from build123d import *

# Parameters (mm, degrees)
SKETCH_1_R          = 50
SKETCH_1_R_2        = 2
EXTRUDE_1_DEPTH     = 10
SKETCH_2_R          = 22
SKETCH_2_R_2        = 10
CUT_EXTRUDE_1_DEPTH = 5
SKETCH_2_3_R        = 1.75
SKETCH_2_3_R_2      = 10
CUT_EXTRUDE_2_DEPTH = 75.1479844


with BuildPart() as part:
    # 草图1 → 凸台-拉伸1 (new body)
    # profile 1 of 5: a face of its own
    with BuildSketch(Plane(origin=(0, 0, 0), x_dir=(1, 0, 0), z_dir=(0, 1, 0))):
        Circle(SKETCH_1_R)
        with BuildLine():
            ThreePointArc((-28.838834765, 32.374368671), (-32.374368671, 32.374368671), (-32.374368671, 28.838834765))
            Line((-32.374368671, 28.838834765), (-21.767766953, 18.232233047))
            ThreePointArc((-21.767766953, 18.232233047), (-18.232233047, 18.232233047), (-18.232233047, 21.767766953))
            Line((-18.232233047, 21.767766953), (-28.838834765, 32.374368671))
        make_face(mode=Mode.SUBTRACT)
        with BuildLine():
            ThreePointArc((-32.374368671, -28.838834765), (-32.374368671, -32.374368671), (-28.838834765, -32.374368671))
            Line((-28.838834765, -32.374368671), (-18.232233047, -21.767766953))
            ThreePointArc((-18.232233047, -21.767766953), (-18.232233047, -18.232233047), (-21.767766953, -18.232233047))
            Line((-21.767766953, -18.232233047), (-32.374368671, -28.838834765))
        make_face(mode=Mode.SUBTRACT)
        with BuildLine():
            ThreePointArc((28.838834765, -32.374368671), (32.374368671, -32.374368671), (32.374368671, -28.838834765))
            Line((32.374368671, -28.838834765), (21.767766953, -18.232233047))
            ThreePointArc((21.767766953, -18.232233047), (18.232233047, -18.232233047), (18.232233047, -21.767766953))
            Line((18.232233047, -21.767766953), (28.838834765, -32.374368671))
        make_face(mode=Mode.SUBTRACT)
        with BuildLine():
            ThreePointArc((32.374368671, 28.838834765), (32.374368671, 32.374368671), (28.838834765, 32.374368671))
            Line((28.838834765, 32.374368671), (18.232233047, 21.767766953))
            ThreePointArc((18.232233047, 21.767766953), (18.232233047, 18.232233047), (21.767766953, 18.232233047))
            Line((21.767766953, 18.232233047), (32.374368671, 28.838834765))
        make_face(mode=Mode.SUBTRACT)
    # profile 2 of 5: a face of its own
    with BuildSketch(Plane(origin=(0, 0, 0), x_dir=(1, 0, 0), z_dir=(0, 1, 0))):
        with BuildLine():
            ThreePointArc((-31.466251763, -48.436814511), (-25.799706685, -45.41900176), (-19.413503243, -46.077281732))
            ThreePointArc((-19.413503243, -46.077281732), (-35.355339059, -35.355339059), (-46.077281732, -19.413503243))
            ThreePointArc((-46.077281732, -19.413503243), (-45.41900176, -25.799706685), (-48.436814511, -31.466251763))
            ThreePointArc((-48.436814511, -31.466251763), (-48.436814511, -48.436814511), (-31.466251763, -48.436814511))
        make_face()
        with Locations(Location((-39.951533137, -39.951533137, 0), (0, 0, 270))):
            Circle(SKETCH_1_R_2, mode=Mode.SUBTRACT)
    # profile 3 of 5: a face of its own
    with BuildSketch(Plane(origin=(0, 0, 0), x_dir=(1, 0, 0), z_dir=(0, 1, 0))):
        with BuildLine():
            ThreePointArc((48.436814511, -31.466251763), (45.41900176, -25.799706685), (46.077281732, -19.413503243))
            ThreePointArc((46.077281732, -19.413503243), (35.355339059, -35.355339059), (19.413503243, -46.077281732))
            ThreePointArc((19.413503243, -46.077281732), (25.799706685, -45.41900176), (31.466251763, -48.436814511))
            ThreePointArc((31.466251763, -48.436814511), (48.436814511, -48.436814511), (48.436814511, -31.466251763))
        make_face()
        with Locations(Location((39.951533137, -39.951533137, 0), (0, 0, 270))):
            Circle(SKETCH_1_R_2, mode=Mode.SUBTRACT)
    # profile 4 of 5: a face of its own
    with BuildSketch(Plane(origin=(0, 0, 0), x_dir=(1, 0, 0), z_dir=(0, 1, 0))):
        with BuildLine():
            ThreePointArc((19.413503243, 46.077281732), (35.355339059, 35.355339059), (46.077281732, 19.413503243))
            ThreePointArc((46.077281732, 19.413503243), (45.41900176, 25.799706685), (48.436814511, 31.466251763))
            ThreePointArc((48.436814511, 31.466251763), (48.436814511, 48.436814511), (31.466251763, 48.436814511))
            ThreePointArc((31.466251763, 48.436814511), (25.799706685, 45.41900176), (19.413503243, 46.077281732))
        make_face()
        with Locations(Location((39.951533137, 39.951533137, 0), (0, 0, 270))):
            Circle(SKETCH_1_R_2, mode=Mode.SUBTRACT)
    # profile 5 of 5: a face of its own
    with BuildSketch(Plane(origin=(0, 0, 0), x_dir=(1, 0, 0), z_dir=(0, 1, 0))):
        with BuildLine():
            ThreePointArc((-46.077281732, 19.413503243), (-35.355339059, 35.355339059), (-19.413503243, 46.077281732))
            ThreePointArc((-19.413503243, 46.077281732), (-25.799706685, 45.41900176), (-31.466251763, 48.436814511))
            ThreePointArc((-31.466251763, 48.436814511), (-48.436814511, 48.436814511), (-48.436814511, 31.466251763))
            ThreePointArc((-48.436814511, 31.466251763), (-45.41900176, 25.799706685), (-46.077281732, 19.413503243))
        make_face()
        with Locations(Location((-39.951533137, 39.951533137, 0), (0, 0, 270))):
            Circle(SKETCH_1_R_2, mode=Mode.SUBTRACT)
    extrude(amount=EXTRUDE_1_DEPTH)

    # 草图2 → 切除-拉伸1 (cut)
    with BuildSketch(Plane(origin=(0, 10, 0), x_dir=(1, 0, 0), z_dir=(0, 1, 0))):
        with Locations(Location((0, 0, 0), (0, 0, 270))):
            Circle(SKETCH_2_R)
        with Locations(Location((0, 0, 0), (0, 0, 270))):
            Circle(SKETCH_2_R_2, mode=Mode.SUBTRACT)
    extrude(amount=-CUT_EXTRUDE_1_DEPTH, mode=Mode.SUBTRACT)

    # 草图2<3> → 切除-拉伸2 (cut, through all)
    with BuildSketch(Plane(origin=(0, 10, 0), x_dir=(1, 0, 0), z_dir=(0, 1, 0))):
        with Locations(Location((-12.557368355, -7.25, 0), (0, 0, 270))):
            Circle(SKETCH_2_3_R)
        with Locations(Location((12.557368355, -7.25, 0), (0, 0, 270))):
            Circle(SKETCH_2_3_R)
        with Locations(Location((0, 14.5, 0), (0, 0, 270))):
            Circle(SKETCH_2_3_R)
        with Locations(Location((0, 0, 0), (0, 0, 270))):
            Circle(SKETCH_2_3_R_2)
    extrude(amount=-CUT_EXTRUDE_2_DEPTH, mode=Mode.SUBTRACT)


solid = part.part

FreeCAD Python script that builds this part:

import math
import FreeCAD as App
import Part
import Sketcher
from FreeCAD import Vector
Q = App.Units.Quantity

doc = App.newDocument("Part")
body = doc.addObject("PartDesign::Body", "Body")

# Sketch on XZ plane
sketch1 = doc.addObject("Sketcher::SketchObject", "Sketch")
body.addObject(sketch1)
sketch1.AttachmentSupport = (doc.XZ_Plane, [""])
sketch1.MapMode = "FlatFace"
sketch1.addGeometry(Part.ArcOfCircle(Part.Circle(Vector(56.217315, -23.685751, 0), Vector(0, 0, 1), 11.003289), math.radians(157.153099), math.radians(225)), False)
sketch1.addGeometry(Part.ArcOfCircle(Part.Circle(Vector(39.951533, -39.951533, 0), Vector(0, 0, 1), 12), math.radians(-135), math.radians(45)), False)
sketch1.addGeometry(Part.ArcOfCircle(Part.Circle(Vector(23.685751, -56.217315, 0), Vector(0, 0, 1), 11.003289), math.radians(45), math.radians(112.846901)), False)
sketch1.addGeometry(Part.ArcOfCircle(Part.Circle(Vector(0, 0, 0), Vector(0, 0, 1), 50), math.radians(-112.846901), math.radians(-67.153099)), False)
sketch1.addGeometry(Part.ArcOfCircle(Part.Circle(Vector(-23.685751, -56.217315, 0), Vector(0, 0, 1), 11.003289), math.radians(67.153099), math.radians(135)), False)
sketch1.addGeometry(Part.ArcOfCircle(Part.Circle(Vector(-39.951533, -39.951533, 0), Vector(0, 0, 1), 12), math.radians(135), math.radians(315)), False)
sketch1.addGeometry(Part.ArcOfCircle(Part.Circle(Vector(-56.217315, -23.685751, 0), Vector(0, 0, 1), 11.003289), math.radians(-45), math.radians(22.846901)), False)
sketch1.addGeometry(Part.ArcOfCircle(Part.Circle(Vector(0, 0, 0), Vector(0, 0, 1), 50), math.radians(157.153099), math.radians(202.846901)), False)
sketch1.addGeometry(Part.ArcOfCircle(Part.Circle(Vector(-56.217315, 23.685751, 0), Vector(0, 0, 1), 11.003289), math.radians(-22.846901), math.radians(45)), False)
sketch1.addGeometry(Part.ArcOfCircle(Part.Circle(Vector(-39.951533, 39.951533, 0), Vector(0, 0, 1), 12), math.radians(45), math.radians(225)), False)
sketch1.addGeometry(Part.ArcOfCircle(Part.Circle(Vector(-23.685751, 56.217315, 0), Vector(0, 0, 1), 11.003289), math.radians(-135), math.radians(-67.153099)), False)
sketch1.addGeometry(Part.ArcOfCircle(Part.Circle(Vector(0, 0, 0), Vector(0, 0, 1), 50), math.radians(67.153099), math.radians(112.846901)), False)
sketch1.addGeometry(Part.ArcOfCircle(Part.Circle(Vector(23.685751, 56.217315, 0), Vector(0, 0, 1), 11.003289), math.radians(-112.846901), math.radians(-45)), False)
sketch1.addGeometry(Part.ArcOfCircle(Part.Circle(Vector(39.951533, 39.951533, 0), Vector(0, 0, 1), 12), math.radians(-45), math.radians(135)), False)
sketch1.addGeometry(Part.ArcOfCircle(Part.Circle(Vector(56.217315, 23.685751, 0), Vector(0, 0, 1), 11.003289), math.radians(135), math.radians(202.846901)), False)
sketch1.addGeometry(Part.ArcOfCircle(Part.Circle(Vector(0, 0, 0), Vector(0, 0, 1), 50), math.radians(-22.846901), math.radians(22.846901)), False)
sketch1.addGeometry(Part.ArcOfCircle(Part.Circle(Vector(-30.606602, 30.606602, 0), Vector(0, 0, 1), 2.5), math.radians(45), math.radians(225)), False)
sketch1.addGeometry(Part.LineSegment(Vector(-32.374369, 28.838835, 0), Vector(-21.767767, 18.232233, 0)), False)
sketch1.addGeometry(Part.ArcOfCircle(Part.Circle(Vector(-20, 20, 0), Vector(0, 0, 1), 2.5), math.radians(-135), math.radians(45)), False)
sketch1.addGeometry(Part.LineSegment(Vector(-18.232233, 21.767767, 0), Vector(-28.838835, 32.374369, 0)), False)
sketch1.addGeometry(Part.ArcOfCircle(Part.Circle(Vector(30.606602, 30.606602, 0), Vector(0, 0, 1), 2.5), math.radians(-45), math.radians(135)), False)
sketch1.addGeometry(Part.LineSegment(Vector(28.838835, 32.374369, 0), Vector(18.232233, 21.767767, 0)), False)
sketch1.addGeometry(Part.ArcOfCircle(Part.Circle(Vector(20, 20, 0), Vector(0, 0, 1), 2.5), math.radians(135), math.radians(315)), False)
sketch1.addGeometry(Part.LineSegment(Vector(21.767767, 18.232233, 0), Vector(32.374369, 28.838835, 0)), False)
sketch1.addGeometry(Part.ArcOfCircle(Part.Circle(Vector(-30.606602, -30.606602, 0), Vector(0, 0, 1), 2.5), math.radians(135), math.radians(315)), False)
sketch1.addGeometry(Part.LineSegment(Vector(-28.838835, -32.374369, 0), Vector(-18.232233, -21.767767, 0)), False)
sketch1.addGeometry(Part.ArcOfCircle(Part.Circle(Vector(-20, -20, 0), Vector(0, 0, 1), 2.5), math.radians(-45), math.radians(135)), False)
sketch1.addGeometry(Part.LineSegment(Vector(-21.767767, -18.232233, 0), Vector(-32.374369, -28.838835, 0)), False)
sketch1.addGeometry(Part.ArcOfCircle(Part.Circle(Vector(30.606602, -30.606602, 0), Vector(0, 0, 1), 2.5), math.radians(-135), math.radians(45)), False)
sketch1.addGeometry(Part.LineSegment(Vector(32.374369, -28.838835, 0), Vector(21.767767, -18.232233, 0)), False)
sketch1.addGeometry(Part.ArcOfCircle(Part.Circle(Vector(20, -20, 0), Vector(0, 0, 1), 2.5), math.radians(45), math.radians(225)), False)
sketch1.addGeometry(Part.LineSegment(Vector(18.232233, -21.767767, 0), Vector(28.838835, -32.374369, 0)), False)
sketch1.addGeometry(Part.Circle(Vector(39.951533, -39.951533, 0), Vector(0, 0, 1), 2), False)
sketch1.addGeometry(Part.Circle(Vector(-39.951533, -39.951533, 0), Vector(0, 0, 1), 2), False)
sketch1.addGeometry(Part.Circle(Vector(-39.951533, 39.951533, 0), Vector(0, 0, 1), 2), False)
sketch1.addGeometry(Part.Circle(Vector(39.951533, 39.951533, 0), Vector(0, 0, 1), 2), False)
sketch1.addConstraint(Sketcher.Constraint("Tangent", 0, 2, 1, 2))
sketch1.addConstraint(Sketcher.Constraint("Tangent", 1, 1, 2, 1))
sketch1.addConstraint(Sketcher.Constraint("Tangent", 2, 2, 3, 2))
sketch1.addConstraint(Sketcher.Constraint("Tangent", 3, 1, 4, 1))
sketch1.addConstraint(Sketcher.Constraint("Tangent", 4, 2, 5, 2))
sketch1.addConstraint(Sketcher.Constraint("Tangent", 5, 1, 6, 1))
sketch1.addConstraint(Sketcher.Constraint("Tangent", 6, 2, 7, 2))
sketch1.addConstraint(Sketcher.Constraint("Tangent", 7, 1, 8, 1))
sketch1.addConstraint(Sketcher.Constraint("Tangent", 8, 2, 9, 2))
sketch1.addConstraint(Sketcher.Constraint("Tangent", 9, 1, 10, 1))
sketch1.addConstraint(Sketcher.Constraint("Tangent", 10, 2, 11, 2))
sketch1.addConstraint(Sketcher.Constraint("Tangent", 11, 1, 12, 1))
sketch1.addConstraint(Sketcher.Constraint("Tangent", 12, 2, 13, 2))
sketch1.addConstraint(Sketcher.Constraint("Tangent", 13, 1, 14, 1))
sketch1.addConstraint(Sketcher.Constraint("Tangent", 14, 2, 15, 2))
sketch1.addConstraint(Sketcher.Constraint("Tangent", 15, 1, 0, 1))
sketch1.addConstraint(Sketcher.Constraint("Tangent", 16, 2, 17, 1))
sketch1.addConstraint(Sketcher.Constraint("Tangent", 17, 2, 18, 1))
sketch1.addConstraint(Sketcher.Constraint("Tangent", 18, 2, 19, 1))
sketch1.addConstraint(Sketcher.Constraint("Tangent", 19, 2, 16, 1))
sketch1.addConstraint(Sketcher.Constraint("Tangent", 20, 2, 21, 1))
sketch1.addConstraint(Sketcher.Constraint("Tangent", 21, 2, 22, 1))
sketch1.addConstraint(Sketcher.Constraint("Tangent", 22, 2, 23, 1))
sketch1.addConstraint(Sketcher.Constraint("Tangent", 23, 2, 20, 1))
sketch1.addConstraint(Sketcher.Constraint("Tangent", 24, 2, 25, 1))
sketch1.addConstraint(Sketcher.Constraint("Tangent", 25, 2, 26, 1))
sketch1.addConstraint(Sketcher.Constraint("Tangent", 26, 2, 27, 1))
sketch1.addConstraint(Sketcher.Constraint("Tangent", 27, 2, 24, 1))
sketch1.addConstraint(Sketcher.Constraint("Tangent", 28, 2, 29, 1))
sketch1.addConstraint(Sketcher.Constraint("Tangent", 29, 2, 30, 1))
sketch1.addConstraint(Sketcher.Constraint("Tangent", 30, 2, 31, 1))
sketch1.addConstraint(Sketcher.Constraint("Tangent", 31, 2, 28, 1))
sketch1.addConstraint(Sketcher.Constraint("Coincident", 3, 3, -1, 1))
sketch1.addConstraint(Sketcher.Constraint("Coincident", 7, 3, -1, 1))
sketch1.addConstraint(Sketcher.Constraint("Coincident", 11, 3, -1, 1))
sketch1.addConstraint(Sketcher.Constraint("Coincident", 15, 3, -1, 1))
sketch1.addConstraint(Sketcher.Constraint("Coincident", 32, 3, 1, 3))
sketch1.addConstraint(Sketcher.Constraint("Coincident", 33, 3, 5, 3))
sketch1.addConstraint(Sketcher.Constraint("Coincident", 34, 3, 9, 3))
sketch1.addConstraint(Sketcher.Constraint("Coincident", 35, 3, 13, 3))
sketch1.addConstraint(Sketcher.Constraint("Equal", 0, 2))
sketch1.addConstraint(Sketcher.Constraint("Equal", 2, 4))
sketch1.addConstraint(Sketcher.Constraint("Equal", 1, 5))
sketch1.addConstraint(Sketcher.Constraint("Equal", 4, 6))
sketch1.addConstraint(Sketcher.Constraint("Equal", 3, 7))
sketch1.addConstraint(Sketcher.Constraint("Equal", 6, 8))
sketch1.addConstraint(Sketcher.Constraint("Equal", 5, 9))
sketch1.addConstraint(Sketcher.Constraint("Equal", 8, 10))
sketch1.addConstraint(Sketcher.Constraint("Equal", 7, 11))
sketch1.addConstraint(Sketcher.Constraint("Equal", 10, 12))
sketch1.addConstraint(Sketcher.Constraint("Equal", 9, 13))
sketch1.addConstraint(Sketcher.Constraint("Equal", 12, 14))
sketch1.addConstraint(Sketcher.Constraint("Equal", 11, 15))
sketch1.addConstraint(Sketcher.Constraint("Equal", 16, 18))
sketch1.addConstraint(Sketcher.Constraint("Equal", 18, 20))
sketch1.addConstraint(Sketcher.Constraint("Equal", 20, 22))
sketch1.addConstraint(Sketcher.Constraint("Equal", 22, 24))
sketch1.addConstraint(Sketcher.Constraint("Equal", 24, 26))
sketch1.addConstraint(Sketcher.Constraint("Equal", 26, 28))
sketch1.addConstraint(Sketcher.Constraint("Equal", 28, 30))
sketch1.addConstraint(Sketcher.Constraint("Equal", 32, 33))
sketch1.addConstraint(Sketcher.Constraint("Equal", 33, 34))
sketch1.addConstraint(Sketcher.Constraint("Equal", 34, 35))
sketch1.addConstraint(Sketcher.Constraint("Symmetric", 1, 3, 9, 3, -1, 1))
sketch1.addConstraint(Sketcher.Constraint("Symmetric", 5, 3, 13, 3, -1, 1))
sketch1.addConstraint(Sketcher.Constraint("Symmetric", 20, 3, 24, 3, -1, 1))
sketch1.addConstraint(Sketcher.Constraint("Symmetric", 22, 3, 26, 3, -1, 1))
sketch1.addConstraint(Sketcher.Constraint("Symmetric", 16, 3, 28, 3, -1, 1))
sketch1.addConstraint(Sketcher.Constraint("Symmetric", 18, 3, 30, 3, -1, 1))
sketch1.addConstraint(Sketcher.Constraint("Symmetric", 1, 3, 5, 3, -2))
sketch1.addConstraint(Sketcher.Constraint("Symmetric", 16, 3, 20, 3, -2))
sketch1.addConstraint(Sketcher.Constraint("Symmetric", 18, 3, 22, 3, -2))
sketch1.addConstraint(Sketcher.Constraint("Perpendicular", 19, 21))
sketch1.addConstraint(Sketcher.Constraint("Diameter", 32, Q("4 mm")))
sketch1.addConstraint(Sketcher.Constraint("Radius", 1, Q("12 mm")))
sketch1.addConstraint(Sketcher.Constraint("Radius", 3, Q("50 mm")))
sketch1.addConstraint(Sketcher.Constraint("Radius", 16, Q("2.5 mm")))
sketch1.addConstraint(Sketcher.Constraint("Distance", 17, Q("15 mm")))
sketch1.addConstraint(Sketcher.Constraint("DistanceX", 18, 3, -1, 1, Q("20 mm")))
sketch1.addConstraint(Sketcher.Constraint("DistanceY", -1, 1, 18, 3, Q("20 mm")))
sketch1.addConstraint(Sketcher.Constraint("Radius", 0, Q("11.003289 mm")))
sketch1.addConstraint(Sketcher.Constraint("DistanceX", 0, 2, 0, 3, Q("7.780501 mm")))
sketch1.addConstraint(Sketcher.Constraint("DistanceX", 2, 3, 1, 1, Q("7.780501 mm")))
pad1 = doc.addObject("PartDesign::Pad", "Pad")
body.addObject(pad1)
pad1.Profile = sketch1
pad1.Length = 10
pad1.Reversed = True

# Sketch on XZ plane
sketch2 = doc.addObject("Sketcher::SketchObject", "Sketch001")
body.addObject(sketch2)
sketch2.AttachmentSupport = (doc.XZ_Plane, [""])
sketch2.MapMode = "FlatFace"
sketch2.AttachmentOffset = App.Placement(Vector(0, 0, -10), App.Rotation())
sketch2.addGeometry(Part.Circle(Vector(0, 0, 0), Vector(0, 0, 1), 22), False)
sketch2.addGeometry(Part.Circle(Vector(0, 0, 0), Vector(0, 0, 1), 10), False)
sketch2.addConstraint(Sketcher.Constraint("Coincident", 0, 3, -1, 1))
sketch2.addConstraint(Sketcher.Constraint("Coincident", 1, 3, -1, 1))
sketch2.addConstraint(Sketcher.Constraint("Diameter", 0, Q("44 mm")))
sketch2.addConstraint(Sketcher.Constraint("Diameter", 1, Q("20 mm")))
pocket1 = doc.addObject("PartDesign::Pocket", "Pocket")
body.addObject(pocket1)
pocket1.Profile = sketch2
pocket1.Length = 5
pocket1.Reversed = True

# Sketch on XZ plane
sketch3 = doc.addObject("Sketcher::SketchObject", "Sketch002")
body.addObject(sketch3)
sketch3.AttachmentSupport = (doc.XZ_Plane, [""])
sketch3.MapMode = "FlatFace"
sketch3.AttachmentOffset = App.Placement(Vector(0, 0, -10), App.Rotation())
sketch3.addGeometry(Part.Circle(Vector(-12.557368, 7.25, 0), Vector(0, 0, 1), 1.75), False)
sketch3.addGeometry(Part.Circle(Vector(12.557368, 7.25, 0), Vector(0, 0, 1), 1.75), False)
sketch3.addGeometry(Part.Circle(Vector(0, -14.5, 0), Vector(0, 0, 1), 1.75), False)
sketch3.addGeometry(Part.Circle(Vector(0, 0, 0), Vector(0, 0, 1), 10), False)
sketch3.addConstraint(Sketcher.Constraint("Coincident", 3, 3, -1, 1))
sketch3.addConstraint(Sketcher.Constraint("Equal", 0, 1))
sketch3.addConstraint(Sketcher.Constraint("Equal", 1, 2))
sketch3.addConstraint(Sketcher.Constraint("Symmetric", 0, 3, 1, 3, -2))
sketch3.addConstraint(Sketcher.Constraint("PointOnObject", 2, 3, -2))
sketch3.addConstraint(Sketcher.Constraint("Diameter", 3, Q("20 mm")))
sketch3.addConstraint(Sketcher.Constraint("Diameter", 0, Q("3.5 mm")))
sketch3.addConstraint(Sketcher.Constraint("DistanceY", 2, 3, -1, 1, Q("14.5 mm")))
sketch3.addConstraint(Sketcher.Constraint("DistanceY", -1, 1, 0, 3, Q("7.25 mm")))
sketch3.addConstraint(Sketcher.Constraint("DistanceX", 0, 3, -1, 1, Q("12.557368 mm")))
pocket2 = doc.addObject("PartDesign::Pocket", "Pocket001")
body.addObject(pocket2)
pocket2.Profile = sketch3
pocket2.Type = "ThroughAll"
pocket2.Reversed = True

doc.recompute()
